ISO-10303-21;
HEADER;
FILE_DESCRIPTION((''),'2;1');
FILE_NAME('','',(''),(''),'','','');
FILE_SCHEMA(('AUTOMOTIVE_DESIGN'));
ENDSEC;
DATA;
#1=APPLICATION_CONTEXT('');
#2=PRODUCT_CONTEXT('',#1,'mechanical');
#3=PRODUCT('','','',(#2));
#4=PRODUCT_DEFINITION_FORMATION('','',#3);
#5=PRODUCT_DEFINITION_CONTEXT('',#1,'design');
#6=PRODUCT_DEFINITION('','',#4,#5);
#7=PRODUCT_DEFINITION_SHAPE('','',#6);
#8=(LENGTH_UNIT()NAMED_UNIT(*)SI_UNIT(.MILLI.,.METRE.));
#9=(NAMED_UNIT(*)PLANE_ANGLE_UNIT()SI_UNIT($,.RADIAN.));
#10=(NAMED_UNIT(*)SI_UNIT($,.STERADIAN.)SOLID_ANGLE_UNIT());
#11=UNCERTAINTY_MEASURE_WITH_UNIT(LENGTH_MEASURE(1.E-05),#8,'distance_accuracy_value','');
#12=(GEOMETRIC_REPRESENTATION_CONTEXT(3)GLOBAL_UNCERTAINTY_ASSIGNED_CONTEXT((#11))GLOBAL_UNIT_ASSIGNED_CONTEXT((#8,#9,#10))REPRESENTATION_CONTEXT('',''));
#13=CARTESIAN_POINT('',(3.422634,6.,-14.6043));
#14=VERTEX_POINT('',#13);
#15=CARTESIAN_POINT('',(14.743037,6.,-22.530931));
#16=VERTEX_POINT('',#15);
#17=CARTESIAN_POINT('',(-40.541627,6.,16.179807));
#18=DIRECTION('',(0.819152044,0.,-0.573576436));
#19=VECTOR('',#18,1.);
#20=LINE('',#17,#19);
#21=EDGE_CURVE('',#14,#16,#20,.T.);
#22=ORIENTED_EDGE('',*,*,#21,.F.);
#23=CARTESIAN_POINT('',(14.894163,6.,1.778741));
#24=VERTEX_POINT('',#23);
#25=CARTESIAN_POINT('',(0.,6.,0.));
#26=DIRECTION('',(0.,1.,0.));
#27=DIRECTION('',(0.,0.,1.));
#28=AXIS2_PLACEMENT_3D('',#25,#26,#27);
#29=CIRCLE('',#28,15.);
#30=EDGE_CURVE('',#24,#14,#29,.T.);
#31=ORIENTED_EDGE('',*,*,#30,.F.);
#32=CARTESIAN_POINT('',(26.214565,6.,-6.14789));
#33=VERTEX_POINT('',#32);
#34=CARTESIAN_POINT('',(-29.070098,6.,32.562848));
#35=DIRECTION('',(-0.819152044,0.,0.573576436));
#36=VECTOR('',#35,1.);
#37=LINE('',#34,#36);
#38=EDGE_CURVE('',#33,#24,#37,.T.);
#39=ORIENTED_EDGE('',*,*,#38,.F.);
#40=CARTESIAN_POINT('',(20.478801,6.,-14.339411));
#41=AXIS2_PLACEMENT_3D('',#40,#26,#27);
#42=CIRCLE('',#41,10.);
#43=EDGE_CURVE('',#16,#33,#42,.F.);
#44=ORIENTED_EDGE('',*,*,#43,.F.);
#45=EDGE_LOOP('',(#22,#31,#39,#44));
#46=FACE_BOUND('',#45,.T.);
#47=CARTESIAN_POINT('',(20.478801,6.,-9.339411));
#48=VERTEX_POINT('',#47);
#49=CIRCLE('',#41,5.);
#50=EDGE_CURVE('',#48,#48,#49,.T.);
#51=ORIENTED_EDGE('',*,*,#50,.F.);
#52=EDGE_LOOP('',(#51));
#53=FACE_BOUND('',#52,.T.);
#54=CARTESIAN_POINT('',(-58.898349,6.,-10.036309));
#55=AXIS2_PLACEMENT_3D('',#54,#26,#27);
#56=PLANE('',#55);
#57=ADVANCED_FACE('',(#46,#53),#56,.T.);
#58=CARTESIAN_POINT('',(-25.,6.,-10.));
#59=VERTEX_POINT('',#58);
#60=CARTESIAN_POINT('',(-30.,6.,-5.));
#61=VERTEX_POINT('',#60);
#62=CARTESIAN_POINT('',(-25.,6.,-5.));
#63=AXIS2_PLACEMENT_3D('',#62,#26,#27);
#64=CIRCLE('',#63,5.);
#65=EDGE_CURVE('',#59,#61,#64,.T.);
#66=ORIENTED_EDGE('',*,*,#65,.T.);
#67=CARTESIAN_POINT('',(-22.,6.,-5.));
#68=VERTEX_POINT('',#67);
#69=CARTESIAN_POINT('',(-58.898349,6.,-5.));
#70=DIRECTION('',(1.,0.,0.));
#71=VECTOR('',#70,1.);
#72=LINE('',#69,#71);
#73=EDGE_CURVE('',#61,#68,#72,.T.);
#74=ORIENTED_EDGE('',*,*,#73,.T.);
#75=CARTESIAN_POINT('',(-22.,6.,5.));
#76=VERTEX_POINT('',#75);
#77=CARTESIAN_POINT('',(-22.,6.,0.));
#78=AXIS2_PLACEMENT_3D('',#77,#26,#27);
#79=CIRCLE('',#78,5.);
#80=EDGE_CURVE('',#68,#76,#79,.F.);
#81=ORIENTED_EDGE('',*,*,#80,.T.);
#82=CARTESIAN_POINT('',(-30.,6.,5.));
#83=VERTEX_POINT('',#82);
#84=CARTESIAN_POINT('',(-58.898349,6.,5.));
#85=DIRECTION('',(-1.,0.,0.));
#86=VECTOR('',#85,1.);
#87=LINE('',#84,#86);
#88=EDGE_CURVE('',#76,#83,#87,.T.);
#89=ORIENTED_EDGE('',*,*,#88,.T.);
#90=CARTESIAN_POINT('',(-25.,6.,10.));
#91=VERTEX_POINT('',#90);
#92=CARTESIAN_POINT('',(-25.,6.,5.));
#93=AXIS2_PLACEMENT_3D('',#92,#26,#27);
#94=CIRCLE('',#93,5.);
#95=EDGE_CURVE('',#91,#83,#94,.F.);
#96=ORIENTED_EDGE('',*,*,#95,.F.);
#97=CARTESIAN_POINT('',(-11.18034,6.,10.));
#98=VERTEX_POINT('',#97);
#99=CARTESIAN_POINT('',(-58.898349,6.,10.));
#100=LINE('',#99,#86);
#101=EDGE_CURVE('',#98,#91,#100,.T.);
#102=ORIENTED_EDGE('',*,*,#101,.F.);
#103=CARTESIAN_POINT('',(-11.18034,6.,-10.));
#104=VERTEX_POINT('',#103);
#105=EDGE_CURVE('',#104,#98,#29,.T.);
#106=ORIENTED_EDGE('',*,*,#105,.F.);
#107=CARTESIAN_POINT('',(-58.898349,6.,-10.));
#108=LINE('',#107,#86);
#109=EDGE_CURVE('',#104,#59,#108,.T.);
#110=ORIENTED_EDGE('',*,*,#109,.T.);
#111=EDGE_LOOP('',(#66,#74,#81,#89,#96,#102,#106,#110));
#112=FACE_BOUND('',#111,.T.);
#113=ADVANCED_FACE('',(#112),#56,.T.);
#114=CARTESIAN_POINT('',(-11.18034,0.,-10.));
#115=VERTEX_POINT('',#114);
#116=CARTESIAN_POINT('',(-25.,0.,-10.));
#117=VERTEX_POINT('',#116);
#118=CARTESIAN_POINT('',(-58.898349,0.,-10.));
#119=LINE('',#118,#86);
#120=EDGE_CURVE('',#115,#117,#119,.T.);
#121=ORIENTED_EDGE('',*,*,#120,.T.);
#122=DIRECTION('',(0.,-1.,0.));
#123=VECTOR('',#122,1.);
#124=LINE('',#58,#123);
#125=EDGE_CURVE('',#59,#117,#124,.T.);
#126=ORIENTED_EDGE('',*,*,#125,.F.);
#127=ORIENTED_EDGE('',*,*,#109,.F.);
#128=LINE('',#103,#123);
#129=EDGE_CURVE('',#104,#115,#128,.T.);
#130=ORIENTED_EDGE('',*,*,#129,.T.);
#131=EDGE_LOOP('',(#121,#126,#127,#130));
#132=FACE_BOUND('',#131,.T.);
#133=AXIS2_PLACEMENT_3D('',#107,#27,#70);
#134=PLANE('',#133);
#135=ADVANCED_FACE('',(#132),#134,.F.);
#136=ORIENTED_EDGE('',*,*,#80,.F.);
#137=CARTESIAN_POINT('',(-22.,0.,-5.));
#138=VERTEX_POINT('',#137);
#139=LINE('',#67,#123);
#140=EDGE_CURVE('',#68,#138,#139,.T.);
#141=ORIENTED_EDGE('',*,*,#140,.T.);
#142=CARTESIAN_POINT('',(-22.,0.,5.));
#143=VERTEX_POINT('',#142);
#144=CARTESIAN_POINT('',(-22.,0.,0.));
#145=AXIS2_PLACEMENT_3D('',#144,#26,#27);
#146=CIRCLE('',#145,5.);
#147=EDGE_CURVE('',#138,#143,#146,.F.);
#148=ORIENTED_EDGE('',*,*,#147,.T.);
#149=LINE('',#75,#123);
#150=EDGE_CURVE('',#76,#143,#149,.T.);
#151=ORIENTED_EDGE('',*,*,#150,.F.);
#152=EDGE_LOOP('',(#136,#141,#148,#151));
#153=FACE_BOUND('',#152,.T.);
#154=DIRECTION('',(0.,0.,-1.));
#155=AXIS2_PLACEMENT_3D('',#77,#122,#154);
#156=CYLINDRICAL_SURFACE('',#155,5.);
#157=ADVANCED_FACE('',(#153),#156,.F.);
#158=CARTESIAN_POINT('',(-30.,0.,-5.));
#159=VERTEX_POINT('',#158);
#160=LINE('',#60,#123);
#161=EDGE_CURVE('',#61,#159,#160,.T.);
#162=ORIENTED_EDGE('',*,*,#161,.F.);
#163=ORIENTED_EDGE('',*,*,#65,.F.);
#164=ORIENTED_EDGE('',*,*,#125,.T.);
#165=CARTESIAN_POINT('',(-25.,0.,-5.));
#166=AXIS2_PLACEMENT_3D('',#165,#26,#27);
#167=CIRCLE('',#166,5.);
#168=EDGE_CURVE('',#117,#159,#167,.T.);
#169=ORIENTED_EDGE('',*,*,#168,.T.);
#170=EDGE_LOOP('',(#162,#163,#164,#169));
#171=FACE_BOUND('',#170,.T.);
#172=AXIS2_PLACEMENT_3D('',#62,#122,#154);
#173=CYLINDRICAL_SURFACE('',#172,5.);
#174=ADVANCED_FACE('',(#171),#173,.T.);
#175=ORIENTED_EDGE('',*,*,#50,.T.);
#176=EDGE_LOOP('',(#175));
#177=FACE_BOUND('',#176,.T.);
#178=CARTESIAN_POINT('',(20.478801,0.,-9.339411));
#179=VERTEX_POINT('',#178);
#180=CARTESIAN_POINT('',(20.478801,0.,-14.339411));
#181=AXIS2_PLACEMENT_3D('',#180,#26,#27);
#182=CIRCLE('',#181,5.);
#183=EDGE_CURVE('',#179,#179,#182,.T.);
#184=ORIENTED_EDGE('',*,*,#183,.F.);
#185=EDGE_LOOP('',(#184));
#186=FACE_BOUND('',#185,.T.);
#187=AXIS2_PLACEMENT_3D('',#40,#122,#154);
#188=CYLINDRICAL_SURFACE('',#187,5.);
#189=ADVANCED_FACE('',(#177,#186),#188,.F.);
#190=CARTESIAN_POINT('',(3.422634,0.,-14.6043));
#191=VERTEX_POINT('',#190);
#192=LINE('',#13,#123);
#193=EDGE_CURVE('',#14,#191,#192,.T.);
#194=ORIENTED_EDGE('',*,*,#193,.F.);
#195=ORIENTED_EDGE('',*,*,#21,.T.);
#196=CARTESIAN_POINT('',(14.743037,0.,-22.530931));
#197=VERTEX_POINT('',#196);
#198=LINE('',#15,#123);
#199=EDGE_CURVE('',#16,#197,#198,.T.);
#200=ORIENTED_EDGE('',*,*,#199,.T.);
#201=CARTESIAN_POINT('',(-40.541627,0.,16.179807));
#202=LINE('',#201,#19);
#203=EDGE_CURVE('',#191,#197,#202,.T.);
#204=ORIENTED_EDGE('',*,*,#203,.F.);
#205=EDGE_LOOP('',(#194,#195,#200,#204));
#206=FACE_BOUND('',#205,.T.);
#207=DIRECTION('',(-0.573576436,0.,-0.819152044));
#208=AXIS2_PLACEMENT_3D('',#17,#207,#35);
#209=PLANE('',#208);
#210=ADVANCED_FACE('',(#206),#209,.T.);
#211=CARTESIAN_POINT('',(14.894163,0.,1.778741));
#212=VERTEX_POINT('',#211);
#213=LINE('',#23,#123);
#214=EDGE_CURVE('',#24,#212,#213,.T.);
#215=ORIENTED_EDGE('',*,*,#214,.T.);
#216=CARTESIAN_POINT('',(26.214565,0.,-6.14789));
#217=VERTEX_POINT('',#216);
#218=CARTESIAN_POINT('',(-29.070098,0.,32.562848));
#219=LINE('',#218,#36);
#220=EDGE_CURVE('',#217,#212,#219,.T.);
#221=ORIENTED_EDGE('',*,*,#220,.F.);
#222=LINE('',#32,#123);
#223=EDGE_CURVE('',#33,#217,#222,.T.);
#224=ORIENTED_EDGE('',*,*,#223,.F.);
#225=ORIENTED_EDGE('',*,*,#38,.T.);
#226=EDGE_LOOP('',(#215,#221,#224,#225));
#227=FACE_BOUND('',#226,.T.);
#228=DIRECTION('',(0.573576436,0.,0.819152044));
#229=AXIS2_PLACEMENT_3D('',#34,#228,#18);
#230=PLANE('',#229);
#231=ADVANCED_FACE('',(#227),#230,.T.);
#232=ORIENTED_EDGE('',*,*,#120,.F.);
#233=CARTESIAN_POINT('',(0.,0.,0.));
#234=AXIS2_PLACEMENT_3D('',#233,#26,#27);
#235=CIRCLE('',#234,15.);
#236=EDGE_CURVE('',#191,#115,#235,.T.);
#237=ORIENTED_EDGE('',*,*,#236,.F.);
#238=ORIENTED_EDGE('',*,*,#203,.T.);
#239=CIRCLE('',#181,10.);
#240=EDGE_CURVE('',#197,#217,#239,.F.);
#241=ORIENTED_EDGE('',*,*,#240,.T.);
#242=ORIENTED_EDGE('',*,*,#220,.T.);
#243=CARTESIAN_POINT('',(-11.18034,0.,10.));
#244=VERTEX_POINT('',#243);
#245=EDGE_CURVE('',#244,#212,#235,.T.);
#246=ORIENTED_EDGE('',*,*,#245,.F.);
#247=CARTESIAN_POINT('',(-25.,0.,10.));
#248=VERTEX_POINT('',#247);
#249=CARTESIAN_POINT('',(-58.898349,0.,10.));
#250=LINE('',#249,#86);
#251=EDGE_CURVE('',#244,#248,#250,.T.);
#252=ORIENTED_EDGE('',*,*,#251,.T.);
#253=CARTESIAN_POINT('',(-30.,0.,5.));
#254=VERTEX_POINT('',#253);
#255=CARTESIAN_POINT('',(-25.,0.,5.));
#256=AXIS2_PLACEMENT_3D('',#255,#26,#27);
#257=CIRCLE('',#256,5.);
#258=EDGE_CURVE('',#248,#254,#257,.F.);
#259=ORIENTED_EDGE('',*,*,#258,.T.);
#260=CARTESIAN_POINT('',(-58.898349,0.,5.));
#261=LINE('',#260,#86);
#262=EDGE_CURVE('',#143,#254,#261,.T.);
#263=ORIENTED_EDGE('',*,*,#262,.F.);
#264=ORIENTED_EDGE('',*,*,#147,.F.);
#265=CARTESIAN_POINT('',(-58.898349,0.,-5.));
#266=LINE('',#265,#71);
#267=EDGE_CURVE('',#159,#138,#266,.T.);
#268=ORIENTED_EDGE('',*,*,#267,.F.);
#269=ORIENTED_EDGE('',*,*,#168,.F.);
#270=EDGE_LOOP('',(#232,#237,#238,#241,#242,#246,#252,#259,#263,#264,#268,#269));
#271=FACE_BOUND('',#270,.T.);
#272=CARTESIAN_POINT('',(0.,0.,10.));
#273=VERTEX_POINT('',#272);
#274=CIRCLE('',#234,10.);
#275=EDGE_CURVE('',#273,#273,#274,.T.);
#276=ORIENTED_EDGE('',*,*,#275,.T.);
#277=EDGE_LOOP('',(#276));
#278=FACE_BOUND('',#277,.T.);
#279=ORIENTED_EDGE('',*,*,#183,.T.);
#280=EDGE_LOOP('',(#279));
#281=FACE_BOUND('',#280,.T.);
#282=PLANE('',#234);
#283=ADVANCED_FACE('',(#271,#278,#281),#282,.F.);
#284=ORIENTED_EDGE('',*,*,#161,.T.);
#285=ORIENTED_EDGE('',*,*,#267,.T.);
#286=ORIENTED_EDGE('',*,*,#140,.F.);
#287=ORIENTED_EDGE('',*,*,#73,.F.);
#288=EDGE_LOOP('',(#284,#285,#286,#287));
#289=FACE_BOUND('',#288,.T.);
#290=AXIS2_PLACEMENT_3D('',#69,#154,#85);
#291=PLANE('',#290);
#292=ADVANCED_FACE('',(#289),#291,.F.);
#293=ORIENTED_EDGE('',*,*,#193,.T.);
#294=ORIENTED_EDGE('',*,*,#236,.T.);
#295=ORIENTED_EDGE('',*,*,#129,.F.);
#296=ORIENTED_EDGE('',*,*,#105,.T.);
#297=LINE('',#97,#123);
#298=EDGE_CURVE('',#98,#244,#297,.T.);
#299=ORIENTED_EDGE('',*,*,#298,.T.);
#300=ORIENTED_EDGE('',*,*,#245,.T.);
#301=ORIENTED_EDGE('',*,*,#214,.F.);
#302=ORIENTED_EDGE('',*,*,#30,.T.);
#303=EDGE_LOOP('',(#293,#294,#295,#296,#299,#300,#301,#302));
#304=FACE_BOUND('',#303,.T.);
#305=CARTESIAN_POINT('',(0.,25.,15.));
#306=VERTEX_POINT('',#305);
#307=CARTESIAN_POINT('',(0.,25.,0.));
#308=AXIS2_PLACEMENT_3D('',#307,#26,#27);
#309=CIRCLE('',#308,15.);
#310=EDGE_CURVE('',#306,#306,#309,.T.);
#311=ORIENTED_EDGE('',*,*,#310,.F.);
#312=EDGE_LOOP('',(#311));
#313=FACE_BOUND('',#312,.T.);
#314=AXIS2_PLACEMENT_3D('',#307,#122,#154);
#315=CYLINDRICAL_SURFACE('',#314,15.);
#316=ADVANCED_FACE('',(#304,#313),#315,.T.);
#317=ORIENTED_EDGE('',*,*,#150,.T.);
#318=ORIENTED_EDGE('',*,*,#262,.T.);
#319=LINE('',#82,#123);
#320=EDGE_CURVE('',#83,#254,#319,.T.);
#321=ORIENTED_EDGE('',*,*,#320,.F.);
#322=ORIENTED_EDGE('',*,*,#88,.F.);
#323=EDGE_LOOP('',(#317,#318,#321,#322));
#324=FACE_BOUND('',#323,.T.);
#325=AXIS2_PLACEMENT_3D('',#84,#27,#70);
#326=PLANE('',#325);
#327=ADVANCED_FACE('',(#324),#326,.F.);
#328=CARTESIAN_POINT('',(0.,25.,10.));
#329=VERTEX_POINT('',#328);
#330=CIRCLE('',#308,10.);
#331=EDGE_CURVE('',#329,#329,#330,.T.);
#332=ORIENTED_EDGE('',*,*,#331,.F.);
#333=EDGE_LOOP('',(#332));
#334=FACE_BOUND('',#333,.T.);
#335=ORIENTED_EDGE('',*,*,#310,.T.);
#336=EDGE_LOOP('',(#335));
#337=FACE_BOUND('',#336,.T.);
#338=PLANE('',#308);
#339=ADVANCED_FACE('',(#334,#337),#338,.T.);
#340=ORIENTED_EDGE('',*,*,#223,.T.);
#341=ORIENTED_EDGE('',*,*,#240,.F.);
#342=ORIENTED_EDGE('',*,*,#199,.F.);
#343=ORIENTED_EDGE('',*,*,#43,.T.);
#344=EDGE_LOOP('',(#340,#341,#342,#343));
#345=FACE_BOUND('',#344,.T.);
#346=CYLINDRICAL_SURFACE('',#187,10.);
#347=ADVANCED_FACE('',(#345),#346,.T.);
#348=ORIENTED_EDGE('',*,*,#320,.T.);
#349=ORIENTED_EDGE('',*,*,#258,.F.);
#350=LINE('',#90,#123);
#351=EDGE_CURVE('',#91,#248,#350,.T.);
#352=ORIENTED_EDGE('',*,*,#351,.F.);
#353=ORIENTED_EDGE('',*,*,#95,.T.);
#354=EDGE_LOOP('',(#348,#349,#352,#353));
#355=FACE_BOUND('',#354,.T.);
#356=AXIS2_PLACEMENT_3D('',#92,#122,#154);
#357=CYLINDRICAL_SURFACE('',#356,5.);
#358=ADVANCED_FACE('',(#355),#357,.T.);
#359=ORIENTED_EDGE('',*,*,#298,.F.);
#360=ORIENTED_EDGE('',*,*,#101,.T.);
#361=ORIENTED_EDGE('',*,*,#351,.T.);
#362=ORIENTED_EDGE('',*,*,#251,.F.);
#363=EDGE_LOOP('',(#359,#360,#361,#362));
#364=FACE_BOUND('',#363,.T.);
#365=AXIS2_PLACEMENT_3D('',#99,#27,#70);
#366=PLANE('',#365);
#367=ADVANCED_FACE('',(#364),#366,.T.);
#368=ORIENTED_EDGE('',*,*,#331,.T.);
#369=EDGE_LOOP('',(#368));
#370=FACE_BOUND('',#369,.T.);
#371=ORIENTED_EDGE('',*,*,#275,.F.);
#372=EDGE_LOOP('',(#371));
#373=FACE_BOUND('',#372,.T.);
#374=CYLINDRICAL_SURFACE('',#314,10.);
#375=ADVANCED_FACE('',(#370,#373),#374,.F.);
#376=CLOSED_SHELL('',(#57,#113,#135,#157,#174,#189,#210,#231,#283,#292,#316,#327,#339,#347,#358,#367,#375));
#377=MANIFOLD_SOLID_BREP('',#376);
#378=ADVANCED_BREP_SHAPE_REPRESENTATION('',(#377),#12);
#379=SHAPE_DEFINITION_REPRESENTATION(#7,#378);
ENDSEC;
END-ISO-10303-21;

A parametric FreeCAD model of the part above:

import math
import FreeCAD as App
import Part
import Sketcher

V = App.Vector
Q = App.Units.Quantity

doc = App.newDocument("Part")
params = doc.addObject("Spreadsheet::Sheet", "Params")
for row, (alias, value) in enumerate([
    ("sketch1_diameter", "30 mm"),
    ("sketch1_diameter2", "20 mm"),
    ("pad1_length", "25 mm"),
    ("sketch2_diameter", "10 mm"),
    ("sketch2_radius", "15 mm"),
    ("sketch2_radius2", "10 mm"),
    ("sketch2_width", "8 mm"),
    ("pad2_length", "6 mm"),
], start=1):
    params.set(f"A{row}", alias)
    params.set(f"B{row}", "=" + value)
    params.setAlias(f"B{row}", alias)

body = doc.addObject("PartDesign::Body", "Body")

sketch1 = doc.addObject("Sketcher::SketchObject", "Sketch")
body.addObject(sketch1)
sketch1.AttachmentSupport = (doc.XZ_Plane, [""])
sketch1.MapMode = "FlatFace"
sketch1.addGeometry([
    Part.Circle(V(0, 0, 0), V(0, 0, 1), 15),
    Part.Circle(V(0, 0, 0), V(0, 0, 1), 10),
], False)
sketch1.addConstraint([
    Sketcher.Constraint("Coincident", 0, 3, -1, 1),
    Sketcher.Constraint("Coincident", 1, 3, -1, 1),
    Sketcher.Constraint("Diameter", 0, 30.0),
    Sketcher.Constraint("Diameter", 1, 20.0),
])
sketch1.setExpression("Constraints[2]", "Params.sketch1_diameter")
sketch1.setExpression("Constraints[3]", "Params.sketch1_diameter2")
pad1 = doc.addObject("PartDesign::Pad", "Pad")
body.addObject(pad1)
pad1.Profile = sketch1
pad1.setExpression("Length", "Params.pad1_length")
pad1.Reversed = True

sketch2 = doc.addObject("Sketcher::SketchObject", "Sketch001")
body.addObject(sketch2)
sketch2.AttachmentSupport = (doc.XZ_Plane, [""])
sketch2.MapMode = "FlatFace"
sketch2.addGeometry([
    Part.ArcOfCircle(Part.Circle(V(0, 0, 0), V(0, 0, 1), 15), math.radians(138), math.radians(222)),
    Part.LineSegment(V(-11.2, -10, 0), V(-25, -10, 0)),
    Part.ArcOfCircle(Part.Circle(V(-25, -5, 0), V(0, 0, 1), 5), math.radians(180), math.radians(270)),
    Part.LineSegment(V(-30, -5, 0), V(-22, -5, 0)),
    Part.ArcOfCircle(Part.Circle(V(-22, 0, 0), V(0, 0, 1), 5), math.radians(-90), math.radians(90)),
    Part.LineSegment(V(-22, 5, 0), V(-30, 5, 0)),
    Part.ArcOfCircle(Part.Circle(V(-25, 5, 0), V(0, 0, 1), 5), math.radians(90), math.radians(180)),
    Part.LineSegment(V(-25, 10, 0), V(-11.2, 10, 0)),
    Part.LineSegment(V(14.7, -22.5, 0), V(3.4, -14.6, 0)),
    Part.ArcOfCircle(Part.Circle(V(0, 0, 0), V(0, 0, 1), 15), math.radians(-77), math.radians(0)),
    Part.ArcOfCircle(Part.Circle(V(0, 0, 0), V(0, 0, 1), 15), math.radians(0), math.radians(6.81)),
    Part.LineSegment(V(14.9, 1.8, 0), V(26.2, -6.1, 0)),
    Part.ArcOfCircle(Part.Circle(V(20.5, -14.3, 0), V(0, 0, 1), 10), math.radians(-125), math.radians(55)),
    Part.Circle(V(20.5, -14.3, 0), V(0, 0, 1), 5),
], False)
sketch2.addConstraint([
    Sketcher.Constraint("Coincident", 0, 2, 1, 1),
    Sketcher.Constraint("Tangent", 1, 2, 2, 2),
    Sketcher.Constraint("Coincident", 2, 1, 3, 1),
    Sketcher.Constraint("Tangent", 3, 2, 4, 1),
    Sketcher.Constraint("Tangent", 4, 2, 5, 1),
    Sketcher.Constraint("Coincident", 5, 2, 6, 2),
    Sketcher.Constraint("Tangent", 6, 1, 7, 1),
    Sketcher.Constraint("Coincident", 7, 2, 0, 1),
    Sketcher.Constraint("Coincident", 8, 2, 9, 1),
    Sketcher.Constraint("Tangent", 9, 2, 10, 1),
    Sketcher.Constraint("Coincident", 10, 2, 11, 1),
    Sketcher.Constraint("Tangent", 11, 2, 12, 2),
    Sketcher.Constraint("Tangent", 12, 1, 8, 1),
    Sketcher.Constraint("Horizontal", 1),
    Sketcher.Constraint("Horizontal", 3),
    Sketcher.Constraint("Horizontal", 5),
    Sketcher.Constraint("Horizontal", 7),
    Sketcher.Constraint("Coincident", 0, 3, -1, 1),
    Sketcher.Constraint("Coincident", 9, 3, -1, 1),
    Sketcher.Constraint("Coincident", 13, 3, 12, 3),
    Sketcher.Constraint("Equal", 2, 4),
    Sketcher.Constraint("Equal", 4, 6),
    Sketcher.Constraint("Equal", 0, 9),
    Sketcher.Constraint("Equal", 9, 10),
    Sketcher.Constraint("Equal", 6, 13),
    Sketcher.Constraint("Symmetric", 2, 3, 6, 3, -1),
    Sketcher.Constraint("PointOnObject", 4, 3, -1),
    Sketcher.Constraint("PointOnObject", 9, 2, -1),
    Sketcher.Constraint("Parallel", 8, 11),
    Sketcher.Constraint("Horizontal", 6, 3, 4, 2),
    Sketcher.Constraint("Equal", 8, 11),
    Sketcher.Constraint("Diameter", 13, 10.0),
    Sketcher.Constraint("Radius", 0, 15.0),
    Sketcher.Constraint("Radius", 12, 10.0),
    Sketcher.Constraint("DistanceX", 3, 1, 3, 2, 8.0),
    Sketcher.Constraint("Angle", 8, Q("145 deg")),
    Sketcher.Constraint("DistanceX", 2, 3, -1, 1, 25.0),
    Sketcher.Constraint("DistanceX", -1, 1, 12, 3, 20.478801),
])
sketch2.setExpression("Constraints[31]", "Params.sketch2_diameter")
sketch2.setExpression("Constraints[32]", "Params.sketch2_radius")
sketch2.setExpression("Constraints[33]", "Params.sketch2_radius2")
sketch2.setExpression("Constraints[34]", "Params.sketch2_width")
pad2 = doc.addObject("PartDesign::Pad", "Pad001")
body.addObject(pad2)
pad2.Profile = sketch2
pad2.setExpression("Length", "Params.pad2_length")
pad2.Reversed = True

doc.recompute()
